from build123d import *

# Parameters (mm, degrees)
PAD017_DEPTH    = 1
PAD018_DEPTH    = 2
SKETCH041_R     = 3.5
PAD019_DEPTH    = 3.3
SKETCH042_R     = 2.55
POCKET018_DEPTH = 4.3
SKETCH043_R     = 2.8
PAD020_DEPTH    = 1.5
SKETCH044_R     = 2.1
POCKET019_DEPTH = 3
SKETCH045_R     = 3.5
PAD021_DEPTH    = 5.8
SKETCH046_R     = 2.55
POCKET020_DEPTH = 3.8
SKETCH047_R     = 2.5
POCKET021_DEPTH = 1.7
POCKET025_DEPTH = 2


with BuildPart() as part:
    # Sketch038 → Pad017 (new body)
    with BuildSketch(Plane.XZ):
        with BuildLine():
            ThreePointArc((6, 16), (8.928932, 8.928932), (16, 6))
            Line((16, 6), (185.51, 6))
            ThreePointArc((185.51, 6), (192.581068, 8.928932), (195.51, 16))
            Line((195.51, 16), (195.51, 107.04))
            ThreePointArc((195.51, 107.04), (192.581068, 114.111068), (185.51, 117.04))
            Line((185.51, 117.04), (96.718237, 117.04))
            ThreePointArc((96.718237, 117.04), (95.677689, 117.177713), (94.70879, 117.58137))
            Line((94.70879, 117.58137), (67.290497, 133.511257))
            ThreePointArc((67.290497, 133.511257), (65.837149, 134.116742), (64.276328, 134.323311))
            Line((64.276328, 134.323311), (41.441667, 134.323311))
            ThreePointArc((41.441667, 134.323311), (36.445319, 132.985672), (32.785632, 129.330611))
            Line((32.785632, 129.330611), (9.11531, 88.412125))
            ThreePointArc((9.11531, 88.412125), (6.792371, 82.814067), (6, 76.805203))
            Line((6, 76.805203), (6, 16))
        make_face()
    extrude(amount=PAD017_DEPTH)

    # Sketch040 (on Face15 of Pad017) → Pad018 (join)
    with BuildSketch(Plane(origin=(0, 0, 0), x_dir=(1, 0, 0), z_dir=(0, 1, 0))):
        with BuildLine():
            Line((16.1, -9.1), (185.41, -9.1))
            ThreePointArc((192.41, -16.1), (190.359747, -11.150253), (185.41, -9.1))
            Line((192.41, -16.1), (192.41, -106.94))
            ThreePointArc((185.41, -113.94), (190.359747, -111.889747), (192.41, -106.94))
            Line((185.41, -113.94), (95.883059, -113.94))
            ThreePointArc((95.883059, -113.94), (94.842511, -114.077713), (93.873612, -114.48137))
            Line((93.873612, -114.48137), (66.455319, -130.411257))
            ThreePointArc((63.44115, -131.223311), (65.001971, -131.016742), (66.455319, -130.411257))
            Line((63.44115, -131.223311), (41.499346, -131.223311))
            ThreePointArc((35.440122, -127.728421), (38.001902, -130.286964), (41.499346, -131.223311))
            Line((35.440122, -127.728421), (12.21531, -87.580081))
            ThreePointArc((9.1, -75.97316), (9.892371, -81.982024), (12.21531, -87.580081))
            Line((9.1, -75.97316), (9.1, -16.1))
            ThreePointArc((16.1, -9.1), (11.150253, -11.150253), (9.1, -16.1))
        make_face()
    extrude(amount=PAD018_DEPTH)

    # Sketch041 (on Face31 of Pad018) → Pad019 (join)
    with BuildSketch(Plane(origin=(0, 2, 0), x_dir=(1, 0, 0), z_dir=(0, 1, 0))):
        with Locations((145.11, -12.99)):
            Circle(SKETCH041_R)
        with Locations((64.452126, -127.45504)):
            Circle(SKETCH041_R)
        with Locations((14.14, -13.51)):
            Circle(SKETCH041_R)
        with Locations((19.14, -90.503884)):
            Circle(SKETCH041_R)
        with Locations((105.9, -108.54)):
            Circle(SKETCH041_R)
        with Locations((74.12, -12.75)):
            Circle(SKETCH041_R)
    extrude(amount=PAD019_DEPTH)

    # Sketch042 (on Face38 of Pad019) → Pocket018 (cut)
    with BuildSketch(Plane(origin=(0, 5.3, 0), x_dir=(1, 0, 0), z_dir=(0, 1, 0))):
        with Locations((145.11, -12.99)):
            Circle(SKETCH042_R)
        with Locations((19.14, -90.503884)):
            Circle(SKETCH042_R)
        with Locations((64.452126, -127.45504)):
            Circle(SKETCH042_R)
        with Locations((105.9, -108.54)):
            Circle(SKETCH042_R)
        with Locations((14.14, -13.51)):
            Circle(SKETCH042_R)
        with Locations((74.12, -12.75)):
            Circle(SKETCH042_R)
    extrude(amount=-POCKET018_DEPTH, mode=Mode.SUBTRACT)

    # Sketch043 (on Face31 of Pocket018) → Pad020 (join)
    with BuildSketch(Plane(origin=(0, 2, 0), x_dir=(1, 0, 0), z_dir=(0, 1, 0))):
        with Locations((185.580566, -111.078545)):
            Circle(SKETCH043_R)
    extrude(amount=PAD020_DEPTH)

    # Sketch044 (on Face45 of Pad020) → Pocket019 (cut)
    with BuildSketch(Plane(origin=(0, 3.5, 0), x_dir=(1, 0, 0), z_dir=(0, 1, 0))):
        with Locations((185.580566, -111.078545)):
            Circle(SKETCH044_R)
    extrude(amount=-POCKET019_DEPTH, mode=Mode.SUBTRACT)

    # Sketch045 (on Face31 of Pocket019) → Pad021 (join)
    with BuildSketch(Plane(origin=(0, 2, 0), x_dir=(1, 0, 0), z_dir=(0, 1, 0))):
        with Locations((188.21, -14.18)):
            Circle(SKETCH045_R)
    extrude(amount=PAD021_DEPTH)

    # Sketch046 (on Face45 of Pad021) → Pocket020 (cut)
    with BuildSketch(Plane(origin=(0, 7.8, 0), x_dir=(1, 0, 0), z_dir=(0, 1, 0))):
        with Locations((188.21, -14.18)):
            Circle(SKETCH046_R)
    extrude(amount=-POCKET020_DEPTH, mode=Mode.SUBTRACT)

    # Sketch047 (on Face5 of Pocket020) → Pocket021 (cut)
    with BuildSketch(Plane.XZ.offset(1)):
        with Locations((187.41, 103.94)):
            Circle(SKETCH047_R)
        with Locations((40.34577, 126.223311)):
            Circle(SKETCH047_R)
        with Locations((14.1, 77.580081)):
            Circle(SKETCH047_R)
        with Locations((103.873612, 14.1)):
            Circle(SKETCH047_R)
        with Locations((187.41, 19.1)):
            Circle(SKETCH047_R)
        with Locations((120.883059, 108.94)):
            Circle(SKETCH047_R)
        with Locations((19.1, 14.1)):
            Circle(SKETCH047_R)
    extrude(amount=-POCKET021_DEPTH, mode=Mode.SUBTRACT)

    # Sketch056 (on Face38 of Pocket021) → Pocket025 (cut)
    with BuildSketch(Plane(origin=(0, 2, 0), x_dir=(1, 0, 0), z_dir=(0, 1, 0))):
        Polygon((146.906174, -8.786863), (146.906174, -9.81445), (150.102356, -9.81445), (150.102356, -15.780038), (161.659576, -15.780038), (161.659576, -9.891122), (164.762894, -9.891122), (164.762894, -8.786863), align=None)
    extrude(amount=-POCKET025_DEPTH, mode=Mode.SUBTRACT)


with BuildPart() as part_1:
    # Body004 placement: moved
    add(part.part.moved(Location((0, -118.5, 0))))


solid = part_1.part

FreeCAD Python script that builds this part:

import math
import FreeCAD as App
import Part
import Sketcher


def add_polygon(sketch, points):
    """Adds a closed chain of lines whose ends are joined by coincident constraints."""
    first, n = sketch.GeometryCount, len(points)
    for a, b in zip(points, points[1:] + points[:1]):
        sketch.addGeometry(Part.LineSegment(App.Vector(*a, 0), App.Vector(*b, 0)), False)
    for i in range(n):
        sketch.addConstraint(Sketcher.Constraint("Coincident", first + i, 2, first + (i + 1) % n, 1))

doc = App.newDocument("Part")
body = doc.addObject("PartDesign::Body", "Body")

sketch1 = doc.addObject("Sketcher::SketchObject", "Sketch")
body.addObject(sketch1)
sketch1.AttachmentSupport = (doc.XZ_Plane, [""])
sketch1.MapMode = "FlatFace"
sketch1.addGeometry([
    Part.ArcOfCircle(Part.Circle(App.Vector(16, 16, 0), App.Vector(0, 0, 1), 10), math.radians(180), math.radians(270)),
    Part.LineSegment(App.Vector(16, 6, 0), App.Vector(185.5, 6, 0)),
    Part.ArcOfCircle(Part.Circle(App.Vector(185.5, 16, 0), App.Vector(0, 0, 1), 10), math.radians(-90), math.radians(0)),
    Part.LineSegment(App.Vector(195.5, 16, 0), App.Vector(195.5, 107, 0)),
    Part.ArcOfCircle(Part.Circle(App.Vector(185.5, 107, 0), App.Vector(0, 0, 1), 10), math.radians(0), math.radians(90)),
    Part.LineSegment(App.Vector(185.5, 117, 0), App.Vector(96.7, 117, 0)),
    Part.ArcOfCircle(Part.Circle(App.Vector(96.7, 121, 0), App.Vector(0, 0, 1), 4), math.radians(-120), math.radians(-90)),
    Part.LineSegment(App.Vector(94.7, 117.6, 0), App.Vector(67.3, 133.5, 0)),
    Part.ArcOfCircle(Part.Circle(App.Vector(64.3, 128.3, 0), App.Vector(0, 0, 1), 6), math.radians(60), math.radians(90)),
    Part.LineSegment(App.Vector(64.3, 134.3, 0), App.Vector(41.4, 134.3, 0)),
    Part.ArcOfCircle(Part.Circle(App.Vector(41.4, 124.3, 0), App.Vector(0, 0, 1), 10), math.radians(90), math.radians(150)),
    Part.LineSegment(App.Vector(32.8, 129.3, 0), App.Vector(9.1, 88.4, 0)),
    Part.ArcOfCircle(Part.Circle(App.Vector(29.2, 76.8, 0), App.Vector(0, 0, 1), 23.2), math.radians(150), math.radians(180)),
    Part.LineSegment(App.Vector(6, 76.8, 0), App.Vector(6, 16, 0)),
], False)
sketch1.addConstraint([
    Sketcher.Constraint("Tangent", 0, 2, 1, 1),
    Sketcher.Constraint("Tangent", 1, 2, 2, 1),
    Sketcher.Constraint("Tangent", 2, 2, 3, 1),
    Sketcher.Constraint("Tangent", 3, 2, 4, 1),
    Sketcher.Constraint("Tangent", 4, 2, 5, 1),
    Sketcher.Constraint("Tangent", 5, 2, 6, 2),
    Sketcher.Constraint("Tangent", 6, 1, 7, 1),
    Sketcher.Constraint("Tangent", 7, 2, 8, 1),
    Sketcher.Constraint("Tangent", 8, 2, 9, 1),
    Sketcher.Constraint("Tangent", 9, 2, 10, 1),
    Sketcher.Constraint("Tangent", 10, 2, 11, 1),
    Sketcher.Constraint("Tangent", 11, 2, 12, 1),
    Sketcher.Constraint("Tangent", 12, 2, 13, 1),
    Sketcher.Constraint("Tangent", 13, 2, 0, 1),
    Sketcher.Constraint("Horizontal", 1),
    Sketcher.Constraint("Vertical", 3),
    Sketcher.Constraint("Horizontal", 5),
    Sketcher.Constraint("Horizontal", 9),
    Sketcher.Constraint("Vertical", 13),
    Sketcher.Constraint("Equal", 0, 2),
    Sketcher.Constraint("Equal", 2, 4),
    Sketcher.Constraint("Radius", 0, 9.999999),
    Sketcher.Constraint("Radius", 10, 10.000002),
    Sketcher.Constraint("DistanceX", -1, 1, 0, 3, 15.999999),
    Sketcher.Constraint("DistanceY", -1, 1, 0, 3, 15.999999),
    Sketcher.Constraint("DistanceX", 1, 1, 1, 2, 169.51),
    Sketcher.Constraint("DistanceY", 3, 1, 3, 2, 91.04),
    Sketcher.Constraint("Distance", 7, 31.71),
    Sketcher.Constraint("Radius", 12, 23.18002),
    Sketcher.Constraint("Radius", 6, 3.999994),
    Sketcher.Constraint("Radius", 8, 5.999987),
    Sketcher.Constraint("DistanceX", 9, 2, 9, 1, 22.834661),
    Sketcher.Constraint("DistanceY", -1, 1, 12, 3, 76.805199),
    Sketcher.Constraint("DistanceY", 10, 2, 9, 2, 4.9927),
    Sketcher.Constraint("DistanceY", 11, 2, 8, 3, 39.911199),
])
pad1 = doc.addObject("PartDesign::Pad", "Pad")
body.addObject(pad1)
pad1.Profile = sketch1
pad1.Length = 1

sketch2 = doc.addObject("Sketcher::SketchObject", "Sketch001")
body.addObject(sketch2)
sketch2.AttachmentSupport = (doc.XZ_Plane, [""])
sketch2.MapMode = "FlatFace"
sketch2.addGeometry([
    Part.LineSegment(App.Vector(185.41, 9.1, 0), App.Vector(16.1, 9.1, 0)),
    Part.ArcOfCircle(Part.Circle(App.Vector(16.100002, 16.100002, 0), App.Vector(0, 0, 1), 7.000002), math.radians(-179.999987), math.radians(-90.000013)),
    Part.LineSegment(App.Vector(9.1, 16.1, 0), App.Vector(9.1, 75.97316, 0)),
    Part.ArcOfCircle(Part.Circle(App.Vector(32.280013, 75.973157, 0), App.Vector(0, 0, 1), 23.180013), math.radians(149.951701), math.radians(179.999991)),
    Part.LineSegment(App.Vector(12.21531, 87.580081, 0), App.Vector(35.440122, 127.728421, 0)),
    Part.ArcOfCircle(Part.Circle(App.Vector(41.499345, 124.223314, 0), App.Vector(0, 0, 1), 6.999997), math.radians(89.99999), math.radians(149.951707)),
    Part.LineSegment(App.Vector(41.499346, 131.223311, 0), App.Vector(63.44115, 131.223311, 0)),
    Part.ArcOfCircle(Part.Circle(App.Vector(63.441153, 125.223324, 0), App.Vector(0, 0, 1), 5.999987), math.radians(59.843604), math.radians(90.000032)),
    Part.LineSegment(App.Vector(66.455319, 130.411257, 0), App.Vector(93.873612, 114.48137, 0)),
    Part.ArcOfCircle(Part.Circle(App.Vector(95.883058, 117.939994, 0), App.Vector(0, 0, 1), 3.999994), math.radians(-120.156403), math.radians(-89.999982)),
    Part.LineSegment(App.Vector(95.883059, 113.94, 0), App.Vector(185.41, 113.94, 0)),
    Part.ArcOfCircle(Part.Circle(App.Vector(185.409998, 106.939998, 0), App.Vector(0, 0, 1), 7.000002), math.radians(0.000013), math.radians(89.999987)),
    Part.LineSegment(App.Vector(192.41, 106.94, 0), App.Vector(192.41, 16.1, 0)),
    Part.ArcOfCircle(Part.Circle(App.Vector(185.409998, 16.100002, 0), App.Vector(0, 0, 1), 7.000002), math.radians(-89.999987), math.radians(-0.000013)),
], False)
sketch2.addConstraint([
    Sketcher.Constraint("Coincident", 0, 2, 1, 2),
    Sketcher.Constraint("Coincident", 1, 1, 2, 1),
    Sketcher.Constraint("Coincident", 2, 2, 3, 2),
    Sketcher.Constraint("Coincident", 3, 1, 4, 1),
    Sketcher.Constraint("Coincident", 4, 2, 5, 2),
    Sketcher.Constraint("Coincident", 5, 1, 6, 1),
    Sketcher.Constraint("Coincident", 6, 2, 7, 2),
    Sketcher.Constraint("Coincident", 7, 1, 8, 1),
    Sketcher.Constraint("Coincident", 8, 2, 9, 1),
    Sketcher.Constraint("Coincident", 9, 2, 10, 1),
    Sketcher.Constraint("Coincident", 10, 2, 11, 2),
    Sketcher.Constraint("Coincident", 11, 1, 12, 1),
    Sketcher.Constraint("Coincident", 12, 2, 13, 2),
    Sketcher.Constraint("Coincident", 13, 1, 0, 1),
    Sketcher.Constraint("Horizontal", 0),
    Sketcher.Constraint("Vertical", 2),
    Sketcher.Constraint("Horizontal", 6),
    Sketcher.Constraint("Horizontal", 10),
    Sketcher.Constraint("Vertical", 12),
    Sketcher.Constraint("Radius", 1, 7.000002),
    Sketcher.Constraint("Radius", 11, 7.000002),
    Sketcher.Constraint("Radius", 13, 7.000002),
    Sketcher.Constraint("DistanceX", 1, 1, 0, 2, 7.0),
    Sketcher.Constraint("DistanceY", 0, 2, 1, 1, 7.0),
    Sketcher.Constraint("DistanceX", 10, 2, 11, 1, 7.0),
    Sketcher.Constraint("DistanceY", 11, 1, 10, 2, 7.0),
    Sketcher.Constraint("DistanceX", 13, 1, 12, 2, 7.0),
    Sketcher.Constraint("DistanceY", 13, 1, 12, 2, 7.0),
    Sketcher.Constraint("DistanceX", 0, 2, 0, 1, 169.31),
    Sketcher.Constraint("DistanceY", 12, 2, 12, 1, 90.84),
    Sketcher.Constraint("DistanceX", -1, 1, 1, 3, 16.100002),
    Sketcher.Constraint("DistanceY", -1, 1, 1, 3, 16.100002),
    Sketcher.Constraint("Distance", 8, 31.71),
    Sketcher.Constraint("Radius", 3, 23.180013),
    Sketcher.Constraint("Radius", 5, 6.999997),
    Sketcher.Constraint("Radius", 7, 5.999987),
    Sketcher.Constraint("Radius", 9, 3.999994),
    Sketcher.Constraint("DistanceX", 10, 1, 10, 2, 89.526941),
    Sketcher.Constraint("DistanceY", 2, 1, 2, 2, 59.87316),
    Sketcher.Constraint("DistanceX", 6, 1, 6, 2, 21.941804),
    Sketcher.Constraint("DistanceX", -1, 1, 3, 1, 12.21531),
    Sketcher.Constraint("DistanceY", -1, 1, 3, 1, 87.580081),
    Sketcher.Constraint("DistanceY", -1, 1, 4, 2, 127.728421),
    Sketcher.Constraint("DistanceY", -1, 1, 5, 1, 131.223311),
    Sketcher.Constraint("DistanceX", -1, 1, 6, 2, 63.44115),
    Sketcher.Constraint("DistanceX", -1, 1, 7, 1, 66.455319),
    Sketcher.Constraint("DistanceX", -1, 1, 8, 2, 93.873612),
    Sketcher.Constraint("DistanceY", -1, 1, 8, 2, 114.48137),
    Sketcher.Constraint("DistanceX", 3, 3, 5, 3, 9.219332),
])
pad2 = doc.addObject("PartDesign::Pad", "Pad001")
body.addObject(pad2)
pad2.Profile = sketch2
pad2.Length = 2
pad2.Reversed = True

sketch3 = doc.addObject("Sketcher::SketchObject", "Sketch002")
body.addObject(sketch3)
sketch3.AttachmentSupport = (doc.XZ_Plane, [""])
sketch3.MapMode = "FlatFace"
sketch3.AttachmentOffset = App.Placement(App.Vector(0, 0, -2), App.Rotation())
sketch3.addGeometry([
    Part.Circle(App.Vector(145.1, 13, 0), App.Vector(0, 0, 1), 3.5),
    Part.Circle(App.Vector(64.5, 127.5, 0), App.Vector(0, 0, 1), 3.5),
    Part.Circle(App.Vector(14.1, 13.5, 0), App.Vector(0, 0, 1), 3.5),
    Part.Circle(App.Vector(19.1, 90.5, 0), App.Vector(0, 0, 1), 3.5),
    Part.Circle(App.Vector(105.9, 108.5, 0), App.Vector(0, 0, 1), 3.5),
    Part.Circle(App.Vector(74.1, 12.8, 0), App.Vector(0, 0, 1), 3.5),
], False)
sketch3.addConstraint([
    Sketcher.Constraint("Equal", 0, 1),
    Sketcher.Constraint("Equal", 1, 2),
    Sketcher.Constraint("Equal", 2, 3),
    Sketcher.Constraint("Equal", 3, 4),
    Sketcher.Constraint("Equal", 4, 5),
    Sketcher.Constraint("Diameter", 0, 7.0),
    Sketcher.Constraint("DistanceX", 2, 3, 3, 3, 5.0),
    Sketcher.Constraint("DistanceX", -1, 1, 4, 3, 105.9),
    Sketcher.Constraint("DistanceX", -1, 1, 0, 3, 145.11),
    Sketcher.Constraint("DistanceY", -1, 1, 0, 3, 12.99),
    Sketcher.Constraint("DistanceX", -1, 1, 2, 3, 14.14),
    Sketcher.Constraint("DistanceY", -1, 1, 2, 3, 13.51),
    Sketcher.Constraint("DistanceY", -1, 1, 4, 3, 108.54),
    Sketcher.Constraint("DistanceX", -1, 1, 5, 3, 74.12),
    Sketcher.Constraint("DistanceY", -1, 1, 5, 3, 12.75),
    Sketcher.Constraint("DistanceY", -1, 1, 1, 3, 127.45504),
    Sketcher.Constraint("DistanceX", -1, 1, 1, 3, 64.452126),
    Sketcher.Constraint("DistanceY", -1, 1, 3, 3, 90.503884),
])
pad3 = doc.addObject("PartDesign::Pad", "Pad002")
body.addObject(pad3)
pad3.Profile = sketch3
pad3.Length = 3.3
pad3.Reversed = True

sketch4 = doc.addObject("Sketcher::SketchObject", "Sketch003")
body.addObject(sketch4)
sketch4.AttachmentSupport = (doc.XZ_Plane, [""])
sketch4.MapMode = "FlatFace"
sketch4.AttachmentOffset = App.Placement(App.Vector(0, 0, -5.3), App.Rotation())
sketch4.addGeometry([
    Part.Circle(App.Vector(145.1, 13, 0), App.Vector(0, 0, 1), 2.5),
    Part.Circle(App.Vector(19.1, 90.5, 0), App.Vector(0, 0, 1), 2.5),
    Part.Circle(App.Vector(64.5, 127.5, 0), App.Vector(0, 0, 1), 2.5),
    Part.Circle(App.Vector(105.9, 108.5, 0), App.Vector(0, 0, 1), 2.5),
    Part.Circle(App.Vector(14.1, 13.5, 0), App.Vector(0, 0, 1), 2.5),
    Part.Circle(App.Vector(74.1, 12.8, 0), App.Vector(0, 0, 1), 2.5),
], False)
sketch4.addConstraint([
    Sketcher.Constraint("Equal", 0, 1),
    Sketcher.Constraint("Equal", 1, 2),
    Sketcher.Constraint("Equal", 2, 3),
    Sketcher.Constraint("Equal", 3, 4),
    Sketcher.Constraint("Equal", 4, 5),
    Sketcher.Constraint("Diameter", 0, 5.1),
    Sketcher.Constraint("DistanceX", 4, 3, 1, 3, 5.0),
    Sketcher.Constraint("DistanceX", -1, 1, 3, 3, 105.9),
    Sketcher.Constraint("DistanceX", -1, 1, 0, 3, 145.11),
    Sketcher.Constraint("DistanceY", -1, 1, 0, 3, 12.99),
    Sketcher.Constraint("DistanceX", -1, 1, 1, 3, 19.14),
    Sketcher.Constraint("DistanceY", -1, 1, 3, 3, 108.54),
    Sketcher.Constraint("DistanceY", -1, 1, 4, 3, 13.51),
    Sketcher.Constraint("DistanceX", -1, 1, 5, 3, 74.12),
    Sketcher.Constraint("DistanceY", -1, 1, 5, 3, 12.75),
    Sketcher.Constraint("DistanceY", -1, 1, 2, 3, 127.45504),
    Sketcher.Constraint("DistanceY", -1, 1, 1, 3, 90.503884),
    Sketcher.Constraint("DistanceX", -1, 1, 2, 3, 64.452126),
])
pocket1 = doc.addObject("PartDesign::Pocket", "Pocket")
body.addObject(pocket1)
pocket1.Profile = sketch4
pocket1.Length = 4.3
pocket1.Reversed = True

sketch5 = doc.addObject("Sketcher::SketchObject", "Sketch004")
body.addObject(sketch5)
sketch5.AttachmentSupport = (doc.XZ_Plane, [""])
sketch5.MapMode = "FlatFace"
sketch5.AttachmentOffset = App.Placement(App.Vector(0, 0, -2), App.Rotation())
sketch5.addGeometry(Part.Circle(App.Vector(185.6, 111.1, 0), App.Vector(0, 0, 1), 2.8), False)
sketch5.addConstraint([
    Sketcher.Constraint("Diameter", 0, 5.6),
    Sketcher.Constraint("DistanceX", -1, 1, 0, 3, 185.580566),
    Sketcher.Constraint("DistanceY", -1, 1, 0, 3, 111.078545),
])
pad4 = doc.addObject("PartDesign::Pad", "Pad003")
body.addObject(pad4)
pad4.Profile = sketch5
pad4.Length = 1.5
pad4.Reversed = True

sketch6 = doc.addObject("Sketcher::SketchObject", "Sketch005")
body.addObject(sketch6)
sketch6.AttachmentSupport = (doc.XZ_Plane, [""])
sketch6.MapMode = "FlatFace"
sketch6.AttachmentOffset = App.Placement(App.Vector(0, 0, -3.5), App.Rotation())
sketch6.addGeometry(Part.Circle(App.Vector(185.6, 111.1, 0), App.Vector(0, 0, 1), 2.1), False)
sketch6.addConstraint([
    Sketcher.Constraint("Diameter", 0, 4.2),
    Sketcher.Constraint("DistanceX", -1, 1, 0, 3, 185.580566),
    Sketcher.Constraint("DistanceY", -1, 1, 0, 3, 111.078545),
])
pocket2 = doc.addObject("PartDesign::Pocket", "Pocket001")
body.addObject(pocket2)
pocket2.Profile = sketch6
pocket2.Length = 3
pocket2.Reversed = True

sketch7 = doc.addObject("Sketcher::SketchObject", "Sketch006")
body.addObject(sketch7)
sketch7.AttachmentSupport = (doc.XZ_Plane, [""])
sketch7.MapMode = "FlatFace"
sketch7.AttachmentOffset = App.Placement(App.Vector(0, 0, -2), App.Rotation())
sketch7.addGeometry(Part.Circle(App.Vector(188.2, 14.2, 0), App.Vector(0, 0, 1), 3.5), False)
sketch7.addConstraint([
    Sketcher.Constraint("Diameter", 0, 7.0),
    Sketcher.Constraint("DistanceX", -1, 1, 0, 3, 188.21),
    Sketcher.Constraint("DistanceY", -1, 1, 0, 3, 14.18),
])
pad5 = doc.addObject("PartDesign::Pad", "Pad004")
body.addObject(pad5)
pad5.Profile = sketch7
pad5.Length = 5.8
pad5.Reversed = True

sketch8 = doc.addObject("Sketcher::SketchObject", "Sketch007")
body.addObject(sketch8)
sketch8.AttachmentSupport = (doc.XZ_Plane, [""])
sketch8.MapMode = "FlatFace"
sketch8.AttachmentOffset = App.Placement(App.Vector(0, 0, -7.8), App.Rotation())
sketch8.addGeometry(Part.Circle(App.Vector(188.2, 14.2, 0), App.Vector(0, 0, 1), 2.5), False)
sketch8.addConstraint([
    Sketcher.Constraint("Diameter", 0, 5.1),
    Sketcher.Constraint("DistanceX", -1, 1, 0, 3, 188.21),
    Sketcher.Constraint("DistanceY", -1, 1, 0, 3, 14.18),
])
pocket3 = doc.addObject("PartDesign::Pocket", "Pocket002")
body.addObject(pocket3)
pocket3.Profile = sketch8
pocket3.Length = 3.8
pocket3.Reversed = True

sketch9 = doc.addObject("Sketcher::SketchObject", "Sketch008")
body.addObject(sketch9)
sketch9.AttachmentSupport = (doc.XZ_Plane, [""])
sketch9.MapMode = "FlatFace"
sketch9.AttachmentOffset = App.Placement(App.Vector(0, 0, 1), App.Rotation())
sketch9.addGeometry([
    Part.Circle(App.Vector(187.4, 103.9, 0), App.Vector(0, 0, 1), 2.5),
    Part.Circle(App.Vector(40.3, 126.2, 0), App.Vector(0, 0, 1), 2.5),
    Part.Circle(App.Vector(14.1, 77.6, 0), App.Vector(0, 0, 1), 2.5),
    Part.Circle(App.Vector(103.9, 14.1, 0), App.Vector(0, 0, 1), 2.5),
    Part.Circle(App.Vector(187.4, 19.1, 0), App.Vector(0, 0, 1), 2.5),
    Part.Circle(App.Vector(120.9, 108.9, 0), App.Vector(0, 0, 1), 2.5),
    Part.Circle(App.Vector(19.1, 14.1, 0), App.Vector(0, 0, 1), 2.5),
], False)
sketch9.addConstraint([
    Sketcher.Constraint("Equal", 0, 1),
    Sketcher.Constraint("Equal", 1, 2),
    Sketcher.Constraint("Equal", 2, 3),
    Sketcher.Constraint("Equal", 3, 4),
    Sketcher.Constraint("Equal", 4, 5),
    Sketcher.Constraint("Equal", 5, 6),
    Sketcher.Constraint("Horizontal", 3, 3, 6, 3),
    Sketcher.Constraint("Vertical", 0, 3, 4, 3),
    Sketcher.Constraint("Diameter", 0, 5.0),
    Sketcher.Constraint("DistanceY", 3, 3, 4, 3, 5.0),
    Sketcher.Constraint("DistanceY", 0, 3, 5, 3, 5.0),
    Sketcher.Constraint("DistanceX", 2, 3, 6, 3, 5.0),
    Sketcher.Constraint("DistanceX", -1, 1, 2, 3, 14.1),
    Sketcher.Constraint("DistanceY", -1, 1, 3, 3, 14.1),
    Sketcher.Constraint("DistanceX", -1, 1, 0, 3, 187.41),
    Sketcher.Constraint("DistanceY", -1, 1, 0, 3, 103.94),
    Sketcher.Constraint("DistanceX", -1, 1, 1, 3, 40.34577),
    Sketcher.Constraint("DistanceY", -1, 1, 1, 3, 126.223311),
    Sketcher.Constraint("DistanceY", -1, 1, 2, 3, 77.580081),
    Sketcher.Constraint("DistanceX", -1, 1, 3, 3, 103.873612),
    Sketcher.Constraint("DistanceX", -1, 1, 5, 3, 120.883059),
])
pocket4 = doc.addObject("PartDesign::Pocket", "Pocket003")
body.addObject(pocket4)
pocket4.Profile = sketch9
pocket4.Length = 1.7

sketch10 = doc.addObject("Sketcher::SketchObject", "Sketch009")
body.addObject(sketch10)
sketch10.AttachmentSupport = (doc.XZ_Plane, [""])
sketch10.MapMode = "FlatFace"
sketch10.AttachmentOffset = App.Placement(App.Vector(0, 0, -2), App.Rotation())
add_polygon(sketch10, [(146.9, 8.8), (146.9, 9.8), (150.1, 9.8), (150.1, 15.8), (161.7, 15.8), (161.7, 9.9), (164.8, 9.9), (164.8, 8.8)])
sketch10.addConstraint([
    Sketcher.Constraint("Vertical", 0),
    Sketcher.Constraint("Horizontal", 1),
    Sketcher.Constraint("Vertical", 2),
    Sketcher.Constraint("Horizontal", 3),
    Sketcher.Constraint("Vertical", 4),
    Sketcher.Constraint("Horizontal", 5),
    Sketcher.Constraint("Vertical", 6),
    Sketcher.Constraint("Horizontal", 7),
    Sketcher.Constraint("DistanceX", 1, 1, 1, 2, 3.196182),
    Sketcher.Constraint("DistanceX", 3, 1, 3, 2, 11.55722),
    Sketcher.Constraint("DistanceX", 5, 1, 5, 2, 3.103318),
    Sketcher.Constraint("DistanceY", 6, 2, 6, 1, 1.104259),
    Sketcher.Constraint("DistanceY", 0, 1, 0, 2, 1.027587),
    Sketcher.Constraint("DistanceY", 2, 1, 2, 2, 5.965588),
    Sketcher.Constraint("DistanceY", -1, 1, 0, 2, 9.81445),
    Sketcher.Constraint("DistanceX", -1, 1, 0, 2, 146.906174),
])
pocket5 = doc.addObject("PartDesign::Pocket", "Pocket004")
body.addObject(pocket5)
pocket5.Profile = sketch10
pocket5.Length = 2
pocket5.Reversed = True
body2 = doc.addObject("PartDesign::Body", "Body001")
doc.recompute()

body.Placement = App.Placement(App.Vector(0, -118.5, 0), App.Rotation(App.Vector(0, 0, 1), 0))
boolean = doc.addObject("PartDesign::Boolean", "Boolean")
body2.addObject(boolean)
boolean.Type = "Fuse"
boolean.addObjects([body])

doc.recompute()
